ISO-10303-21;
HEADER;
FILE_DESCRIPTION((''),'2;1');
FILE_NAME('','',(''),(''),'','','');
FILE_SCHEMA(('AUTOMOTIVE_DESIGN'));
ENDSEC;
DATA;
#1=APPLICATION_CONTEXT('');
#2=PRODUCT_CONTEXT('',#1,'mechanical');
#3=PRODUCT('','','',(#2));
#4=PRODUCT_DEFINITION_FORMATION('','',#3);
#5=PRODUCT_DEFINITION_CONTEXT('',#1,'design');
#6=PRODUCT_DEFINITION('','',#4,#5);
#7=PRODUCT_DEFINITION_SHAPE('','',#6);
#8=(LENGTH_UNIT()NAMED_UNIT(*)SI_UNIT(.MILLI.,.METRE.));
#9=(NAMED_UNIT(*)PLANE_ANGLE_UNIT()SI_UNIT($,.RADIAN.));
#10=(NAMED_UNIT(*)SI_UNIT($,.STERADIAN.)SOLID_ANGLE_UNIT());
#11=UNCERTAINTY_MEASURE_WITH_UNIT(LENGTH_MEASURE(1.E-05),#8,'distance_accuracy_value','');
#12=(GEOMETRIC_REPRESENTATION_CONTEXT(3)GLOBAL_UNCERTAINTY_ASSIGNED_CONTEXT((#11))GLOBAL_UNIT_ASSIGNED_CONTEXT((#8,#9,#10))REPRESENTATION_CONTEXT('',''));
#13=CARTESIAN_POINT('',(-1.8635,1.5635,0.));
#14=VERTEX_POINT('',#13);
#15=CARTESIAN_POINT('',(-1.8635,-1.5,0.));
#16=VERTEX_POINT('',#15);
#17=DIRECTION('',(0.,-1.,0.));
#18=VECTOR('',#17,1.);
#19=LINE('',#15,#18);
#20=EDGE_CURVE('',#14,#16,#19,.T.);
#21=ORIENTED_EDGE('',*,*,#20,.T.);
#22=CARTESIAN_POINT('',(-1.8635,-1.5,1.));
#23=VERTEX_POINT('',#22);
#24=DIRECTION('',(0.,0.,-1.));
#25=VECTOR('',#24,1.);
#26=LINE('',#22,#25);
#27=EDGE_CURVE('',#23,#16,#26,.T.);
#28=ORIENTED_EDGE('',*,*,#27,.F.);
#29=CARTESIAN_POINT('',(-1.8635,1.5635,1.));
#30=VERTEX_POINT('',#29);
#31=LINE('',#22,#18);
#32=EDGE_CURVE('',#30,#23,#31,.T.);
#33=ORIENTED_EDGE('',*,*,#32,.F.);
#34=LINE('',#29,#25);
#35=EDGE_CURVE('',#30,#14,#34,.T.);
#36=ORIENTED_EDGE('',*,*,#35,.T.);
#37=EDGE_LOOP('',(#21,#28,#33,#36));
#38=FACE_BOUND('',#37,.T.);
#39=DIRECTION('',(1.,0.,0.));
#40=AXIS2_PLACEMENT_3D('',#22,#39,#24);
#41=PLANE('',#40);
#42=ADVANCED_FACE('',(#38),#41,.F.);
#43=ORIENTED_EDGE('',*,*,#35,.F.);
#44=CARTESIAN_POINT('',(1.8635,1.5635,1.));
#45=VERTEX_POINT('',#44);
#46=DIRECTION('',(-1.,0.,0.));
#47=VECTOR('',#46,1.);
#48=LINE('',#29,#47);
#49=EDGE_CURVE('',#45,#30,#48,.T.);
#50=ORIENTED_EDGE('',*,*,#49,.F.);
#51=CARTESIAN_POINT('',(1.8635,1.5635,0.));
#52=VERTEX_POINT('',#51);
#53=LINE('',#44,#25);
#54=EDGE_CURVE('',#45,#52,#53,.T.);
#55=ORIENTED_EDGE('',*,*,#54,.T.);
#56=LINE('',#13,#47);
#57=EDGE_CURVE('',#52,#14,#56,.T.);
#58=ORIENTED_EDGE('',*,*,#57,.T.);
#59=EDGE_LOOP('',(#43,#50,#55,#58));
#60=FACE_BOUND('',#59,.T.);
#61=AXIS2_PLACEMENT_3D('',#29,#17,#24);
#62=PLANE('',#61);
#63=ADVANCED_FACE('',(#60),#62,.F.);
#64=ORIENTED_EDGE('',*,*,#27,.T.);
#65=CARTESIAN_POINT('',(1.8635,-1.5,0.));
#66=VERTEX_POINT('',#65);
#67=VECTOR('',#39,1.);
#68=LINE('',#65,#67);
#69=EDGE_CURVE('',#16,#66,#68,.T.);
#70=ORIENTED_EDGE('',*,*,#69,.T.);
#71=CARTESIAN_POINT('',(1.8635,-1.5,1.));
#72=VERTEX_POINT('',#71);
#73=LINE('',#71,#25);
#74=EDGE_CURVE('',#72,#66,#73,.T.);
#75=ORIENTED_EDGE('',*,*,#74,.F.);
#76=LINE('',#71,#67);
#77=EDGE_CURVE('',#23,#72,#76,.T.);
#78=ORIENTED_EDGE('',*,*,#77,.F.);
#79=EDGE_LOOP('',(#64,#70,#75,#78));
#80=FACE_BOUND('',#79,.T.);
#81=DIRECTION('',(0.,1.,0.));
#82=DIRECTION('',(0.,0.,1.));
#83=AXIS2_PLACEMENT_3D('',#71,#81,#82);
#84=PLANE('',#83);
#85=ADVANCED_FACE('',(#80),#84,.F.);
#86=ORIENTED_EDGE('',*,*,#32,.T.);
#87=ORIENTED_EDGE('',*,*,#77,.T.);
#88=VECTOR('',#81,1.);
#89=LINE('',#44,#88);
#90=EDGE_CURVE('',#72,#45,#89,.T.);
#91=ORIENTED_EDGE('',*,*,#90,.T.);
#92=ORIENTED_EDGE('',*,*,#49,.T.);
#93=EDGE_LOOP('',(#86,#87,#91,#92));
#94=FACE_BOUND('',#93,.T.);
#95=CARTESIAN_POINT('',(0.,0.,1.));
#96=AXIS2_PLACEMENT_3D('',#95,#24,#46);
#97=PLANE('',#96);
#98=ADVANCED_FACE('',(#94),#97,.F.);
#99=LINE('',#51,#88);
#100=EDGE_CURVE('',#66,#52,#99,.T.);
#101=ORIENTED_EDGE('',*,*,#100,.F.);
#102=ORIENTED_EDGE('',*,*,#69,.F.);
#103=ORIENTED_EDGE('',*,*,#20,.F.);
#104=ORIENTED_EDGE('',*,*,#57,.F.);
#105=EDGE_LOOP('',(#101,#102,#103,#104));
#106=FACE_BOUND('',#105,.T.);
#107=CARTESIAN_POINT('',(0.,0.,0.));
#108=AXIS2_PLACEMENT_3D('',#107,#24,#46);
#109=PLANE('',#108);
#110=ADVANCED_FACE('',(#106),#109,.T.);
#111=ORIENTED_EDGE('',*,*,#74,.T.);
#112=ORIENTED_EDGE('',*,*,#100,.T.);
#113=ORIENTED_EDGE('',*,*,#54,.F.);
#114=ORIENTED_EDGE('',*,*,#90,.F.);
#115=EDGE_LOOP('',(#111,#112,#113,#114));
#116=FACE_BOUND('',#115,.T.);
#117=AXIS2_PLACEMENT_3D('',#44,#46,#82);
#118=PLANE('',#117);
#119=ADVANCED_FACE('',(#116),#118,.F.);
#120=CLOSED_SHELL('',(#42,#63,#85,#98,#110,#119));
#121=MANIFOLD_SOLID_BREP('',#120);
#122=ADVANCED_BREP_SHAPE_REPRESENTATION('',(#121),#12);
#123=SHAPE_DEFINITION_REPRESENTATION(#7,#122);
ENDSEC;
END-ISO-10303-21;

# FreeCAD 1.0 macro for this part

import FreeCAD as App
import Part
import Sketcher
from FreeCAD import Vector

doc = App.newDocument("Part")
body = doc.addObject("PartDesign::Body", "Body")

sketch1 = body.newObject("Sketcher::SketchObject", "Sketch")
sketch1.AttachmentSupport = (doc.getObject("XY_Plane"), [""])
sketch1.MapMode = "FlatFace"
sketch1.addGeometry([
    Part.LineSegment(Vector(-1.9, 1.6, 0), Vector(-1.9, -1.5, 0)),
    Part.LineSegment(Vector(-1.9, -1.5, 0), Vector(1.9, -1.5, 0)),
    Part.LineSegment(Vector(1.9, -1.5, 0), Vector(1.9, 1.6, 0)),
    Part.LineSegment(Vector(1.9, 1.6, 0), Vector(-1.9, 1.6, 0)),
], False)
sketch1.addConstraint([
    Sketcher.Constraint("Coincident", 0, 2, 1, 1),
    Sketcher.Constraint("Coincident", 1, 2, 2, 1),
    Sketcher.Constraint("Coincident", 2, 2, 3, 1),
    Sketcher.Constraint("Coincident", 3, 2, 0, 1),
    Sketcher.Constraint("Vertical", 0),
    Sketcher.Constraint("Horizontal", 1),
    Sketcher.Constraint("Vertical", 2),
    Sketcher.Constraint("Horizontal", 3),
    Sketcher.Constraint("DistanceY", 0, 2, -1, 1, 1.5),
    Sketcher.Constraint("DistanceX", 1, 1, 1, 2, 3.727),
    Sketcher.Constraint("DistanceY", 0, 2, 0, 1, 3.0635),
    Sketcher.Constraint("DistanceX", 0, 2, -1, 1, 1.8635),
])
pad1 = body.newObject("PartDesign::Pad", "Pad")
pad1.Profile = sketch1
pad1.Length = 1

doc.recompute()
